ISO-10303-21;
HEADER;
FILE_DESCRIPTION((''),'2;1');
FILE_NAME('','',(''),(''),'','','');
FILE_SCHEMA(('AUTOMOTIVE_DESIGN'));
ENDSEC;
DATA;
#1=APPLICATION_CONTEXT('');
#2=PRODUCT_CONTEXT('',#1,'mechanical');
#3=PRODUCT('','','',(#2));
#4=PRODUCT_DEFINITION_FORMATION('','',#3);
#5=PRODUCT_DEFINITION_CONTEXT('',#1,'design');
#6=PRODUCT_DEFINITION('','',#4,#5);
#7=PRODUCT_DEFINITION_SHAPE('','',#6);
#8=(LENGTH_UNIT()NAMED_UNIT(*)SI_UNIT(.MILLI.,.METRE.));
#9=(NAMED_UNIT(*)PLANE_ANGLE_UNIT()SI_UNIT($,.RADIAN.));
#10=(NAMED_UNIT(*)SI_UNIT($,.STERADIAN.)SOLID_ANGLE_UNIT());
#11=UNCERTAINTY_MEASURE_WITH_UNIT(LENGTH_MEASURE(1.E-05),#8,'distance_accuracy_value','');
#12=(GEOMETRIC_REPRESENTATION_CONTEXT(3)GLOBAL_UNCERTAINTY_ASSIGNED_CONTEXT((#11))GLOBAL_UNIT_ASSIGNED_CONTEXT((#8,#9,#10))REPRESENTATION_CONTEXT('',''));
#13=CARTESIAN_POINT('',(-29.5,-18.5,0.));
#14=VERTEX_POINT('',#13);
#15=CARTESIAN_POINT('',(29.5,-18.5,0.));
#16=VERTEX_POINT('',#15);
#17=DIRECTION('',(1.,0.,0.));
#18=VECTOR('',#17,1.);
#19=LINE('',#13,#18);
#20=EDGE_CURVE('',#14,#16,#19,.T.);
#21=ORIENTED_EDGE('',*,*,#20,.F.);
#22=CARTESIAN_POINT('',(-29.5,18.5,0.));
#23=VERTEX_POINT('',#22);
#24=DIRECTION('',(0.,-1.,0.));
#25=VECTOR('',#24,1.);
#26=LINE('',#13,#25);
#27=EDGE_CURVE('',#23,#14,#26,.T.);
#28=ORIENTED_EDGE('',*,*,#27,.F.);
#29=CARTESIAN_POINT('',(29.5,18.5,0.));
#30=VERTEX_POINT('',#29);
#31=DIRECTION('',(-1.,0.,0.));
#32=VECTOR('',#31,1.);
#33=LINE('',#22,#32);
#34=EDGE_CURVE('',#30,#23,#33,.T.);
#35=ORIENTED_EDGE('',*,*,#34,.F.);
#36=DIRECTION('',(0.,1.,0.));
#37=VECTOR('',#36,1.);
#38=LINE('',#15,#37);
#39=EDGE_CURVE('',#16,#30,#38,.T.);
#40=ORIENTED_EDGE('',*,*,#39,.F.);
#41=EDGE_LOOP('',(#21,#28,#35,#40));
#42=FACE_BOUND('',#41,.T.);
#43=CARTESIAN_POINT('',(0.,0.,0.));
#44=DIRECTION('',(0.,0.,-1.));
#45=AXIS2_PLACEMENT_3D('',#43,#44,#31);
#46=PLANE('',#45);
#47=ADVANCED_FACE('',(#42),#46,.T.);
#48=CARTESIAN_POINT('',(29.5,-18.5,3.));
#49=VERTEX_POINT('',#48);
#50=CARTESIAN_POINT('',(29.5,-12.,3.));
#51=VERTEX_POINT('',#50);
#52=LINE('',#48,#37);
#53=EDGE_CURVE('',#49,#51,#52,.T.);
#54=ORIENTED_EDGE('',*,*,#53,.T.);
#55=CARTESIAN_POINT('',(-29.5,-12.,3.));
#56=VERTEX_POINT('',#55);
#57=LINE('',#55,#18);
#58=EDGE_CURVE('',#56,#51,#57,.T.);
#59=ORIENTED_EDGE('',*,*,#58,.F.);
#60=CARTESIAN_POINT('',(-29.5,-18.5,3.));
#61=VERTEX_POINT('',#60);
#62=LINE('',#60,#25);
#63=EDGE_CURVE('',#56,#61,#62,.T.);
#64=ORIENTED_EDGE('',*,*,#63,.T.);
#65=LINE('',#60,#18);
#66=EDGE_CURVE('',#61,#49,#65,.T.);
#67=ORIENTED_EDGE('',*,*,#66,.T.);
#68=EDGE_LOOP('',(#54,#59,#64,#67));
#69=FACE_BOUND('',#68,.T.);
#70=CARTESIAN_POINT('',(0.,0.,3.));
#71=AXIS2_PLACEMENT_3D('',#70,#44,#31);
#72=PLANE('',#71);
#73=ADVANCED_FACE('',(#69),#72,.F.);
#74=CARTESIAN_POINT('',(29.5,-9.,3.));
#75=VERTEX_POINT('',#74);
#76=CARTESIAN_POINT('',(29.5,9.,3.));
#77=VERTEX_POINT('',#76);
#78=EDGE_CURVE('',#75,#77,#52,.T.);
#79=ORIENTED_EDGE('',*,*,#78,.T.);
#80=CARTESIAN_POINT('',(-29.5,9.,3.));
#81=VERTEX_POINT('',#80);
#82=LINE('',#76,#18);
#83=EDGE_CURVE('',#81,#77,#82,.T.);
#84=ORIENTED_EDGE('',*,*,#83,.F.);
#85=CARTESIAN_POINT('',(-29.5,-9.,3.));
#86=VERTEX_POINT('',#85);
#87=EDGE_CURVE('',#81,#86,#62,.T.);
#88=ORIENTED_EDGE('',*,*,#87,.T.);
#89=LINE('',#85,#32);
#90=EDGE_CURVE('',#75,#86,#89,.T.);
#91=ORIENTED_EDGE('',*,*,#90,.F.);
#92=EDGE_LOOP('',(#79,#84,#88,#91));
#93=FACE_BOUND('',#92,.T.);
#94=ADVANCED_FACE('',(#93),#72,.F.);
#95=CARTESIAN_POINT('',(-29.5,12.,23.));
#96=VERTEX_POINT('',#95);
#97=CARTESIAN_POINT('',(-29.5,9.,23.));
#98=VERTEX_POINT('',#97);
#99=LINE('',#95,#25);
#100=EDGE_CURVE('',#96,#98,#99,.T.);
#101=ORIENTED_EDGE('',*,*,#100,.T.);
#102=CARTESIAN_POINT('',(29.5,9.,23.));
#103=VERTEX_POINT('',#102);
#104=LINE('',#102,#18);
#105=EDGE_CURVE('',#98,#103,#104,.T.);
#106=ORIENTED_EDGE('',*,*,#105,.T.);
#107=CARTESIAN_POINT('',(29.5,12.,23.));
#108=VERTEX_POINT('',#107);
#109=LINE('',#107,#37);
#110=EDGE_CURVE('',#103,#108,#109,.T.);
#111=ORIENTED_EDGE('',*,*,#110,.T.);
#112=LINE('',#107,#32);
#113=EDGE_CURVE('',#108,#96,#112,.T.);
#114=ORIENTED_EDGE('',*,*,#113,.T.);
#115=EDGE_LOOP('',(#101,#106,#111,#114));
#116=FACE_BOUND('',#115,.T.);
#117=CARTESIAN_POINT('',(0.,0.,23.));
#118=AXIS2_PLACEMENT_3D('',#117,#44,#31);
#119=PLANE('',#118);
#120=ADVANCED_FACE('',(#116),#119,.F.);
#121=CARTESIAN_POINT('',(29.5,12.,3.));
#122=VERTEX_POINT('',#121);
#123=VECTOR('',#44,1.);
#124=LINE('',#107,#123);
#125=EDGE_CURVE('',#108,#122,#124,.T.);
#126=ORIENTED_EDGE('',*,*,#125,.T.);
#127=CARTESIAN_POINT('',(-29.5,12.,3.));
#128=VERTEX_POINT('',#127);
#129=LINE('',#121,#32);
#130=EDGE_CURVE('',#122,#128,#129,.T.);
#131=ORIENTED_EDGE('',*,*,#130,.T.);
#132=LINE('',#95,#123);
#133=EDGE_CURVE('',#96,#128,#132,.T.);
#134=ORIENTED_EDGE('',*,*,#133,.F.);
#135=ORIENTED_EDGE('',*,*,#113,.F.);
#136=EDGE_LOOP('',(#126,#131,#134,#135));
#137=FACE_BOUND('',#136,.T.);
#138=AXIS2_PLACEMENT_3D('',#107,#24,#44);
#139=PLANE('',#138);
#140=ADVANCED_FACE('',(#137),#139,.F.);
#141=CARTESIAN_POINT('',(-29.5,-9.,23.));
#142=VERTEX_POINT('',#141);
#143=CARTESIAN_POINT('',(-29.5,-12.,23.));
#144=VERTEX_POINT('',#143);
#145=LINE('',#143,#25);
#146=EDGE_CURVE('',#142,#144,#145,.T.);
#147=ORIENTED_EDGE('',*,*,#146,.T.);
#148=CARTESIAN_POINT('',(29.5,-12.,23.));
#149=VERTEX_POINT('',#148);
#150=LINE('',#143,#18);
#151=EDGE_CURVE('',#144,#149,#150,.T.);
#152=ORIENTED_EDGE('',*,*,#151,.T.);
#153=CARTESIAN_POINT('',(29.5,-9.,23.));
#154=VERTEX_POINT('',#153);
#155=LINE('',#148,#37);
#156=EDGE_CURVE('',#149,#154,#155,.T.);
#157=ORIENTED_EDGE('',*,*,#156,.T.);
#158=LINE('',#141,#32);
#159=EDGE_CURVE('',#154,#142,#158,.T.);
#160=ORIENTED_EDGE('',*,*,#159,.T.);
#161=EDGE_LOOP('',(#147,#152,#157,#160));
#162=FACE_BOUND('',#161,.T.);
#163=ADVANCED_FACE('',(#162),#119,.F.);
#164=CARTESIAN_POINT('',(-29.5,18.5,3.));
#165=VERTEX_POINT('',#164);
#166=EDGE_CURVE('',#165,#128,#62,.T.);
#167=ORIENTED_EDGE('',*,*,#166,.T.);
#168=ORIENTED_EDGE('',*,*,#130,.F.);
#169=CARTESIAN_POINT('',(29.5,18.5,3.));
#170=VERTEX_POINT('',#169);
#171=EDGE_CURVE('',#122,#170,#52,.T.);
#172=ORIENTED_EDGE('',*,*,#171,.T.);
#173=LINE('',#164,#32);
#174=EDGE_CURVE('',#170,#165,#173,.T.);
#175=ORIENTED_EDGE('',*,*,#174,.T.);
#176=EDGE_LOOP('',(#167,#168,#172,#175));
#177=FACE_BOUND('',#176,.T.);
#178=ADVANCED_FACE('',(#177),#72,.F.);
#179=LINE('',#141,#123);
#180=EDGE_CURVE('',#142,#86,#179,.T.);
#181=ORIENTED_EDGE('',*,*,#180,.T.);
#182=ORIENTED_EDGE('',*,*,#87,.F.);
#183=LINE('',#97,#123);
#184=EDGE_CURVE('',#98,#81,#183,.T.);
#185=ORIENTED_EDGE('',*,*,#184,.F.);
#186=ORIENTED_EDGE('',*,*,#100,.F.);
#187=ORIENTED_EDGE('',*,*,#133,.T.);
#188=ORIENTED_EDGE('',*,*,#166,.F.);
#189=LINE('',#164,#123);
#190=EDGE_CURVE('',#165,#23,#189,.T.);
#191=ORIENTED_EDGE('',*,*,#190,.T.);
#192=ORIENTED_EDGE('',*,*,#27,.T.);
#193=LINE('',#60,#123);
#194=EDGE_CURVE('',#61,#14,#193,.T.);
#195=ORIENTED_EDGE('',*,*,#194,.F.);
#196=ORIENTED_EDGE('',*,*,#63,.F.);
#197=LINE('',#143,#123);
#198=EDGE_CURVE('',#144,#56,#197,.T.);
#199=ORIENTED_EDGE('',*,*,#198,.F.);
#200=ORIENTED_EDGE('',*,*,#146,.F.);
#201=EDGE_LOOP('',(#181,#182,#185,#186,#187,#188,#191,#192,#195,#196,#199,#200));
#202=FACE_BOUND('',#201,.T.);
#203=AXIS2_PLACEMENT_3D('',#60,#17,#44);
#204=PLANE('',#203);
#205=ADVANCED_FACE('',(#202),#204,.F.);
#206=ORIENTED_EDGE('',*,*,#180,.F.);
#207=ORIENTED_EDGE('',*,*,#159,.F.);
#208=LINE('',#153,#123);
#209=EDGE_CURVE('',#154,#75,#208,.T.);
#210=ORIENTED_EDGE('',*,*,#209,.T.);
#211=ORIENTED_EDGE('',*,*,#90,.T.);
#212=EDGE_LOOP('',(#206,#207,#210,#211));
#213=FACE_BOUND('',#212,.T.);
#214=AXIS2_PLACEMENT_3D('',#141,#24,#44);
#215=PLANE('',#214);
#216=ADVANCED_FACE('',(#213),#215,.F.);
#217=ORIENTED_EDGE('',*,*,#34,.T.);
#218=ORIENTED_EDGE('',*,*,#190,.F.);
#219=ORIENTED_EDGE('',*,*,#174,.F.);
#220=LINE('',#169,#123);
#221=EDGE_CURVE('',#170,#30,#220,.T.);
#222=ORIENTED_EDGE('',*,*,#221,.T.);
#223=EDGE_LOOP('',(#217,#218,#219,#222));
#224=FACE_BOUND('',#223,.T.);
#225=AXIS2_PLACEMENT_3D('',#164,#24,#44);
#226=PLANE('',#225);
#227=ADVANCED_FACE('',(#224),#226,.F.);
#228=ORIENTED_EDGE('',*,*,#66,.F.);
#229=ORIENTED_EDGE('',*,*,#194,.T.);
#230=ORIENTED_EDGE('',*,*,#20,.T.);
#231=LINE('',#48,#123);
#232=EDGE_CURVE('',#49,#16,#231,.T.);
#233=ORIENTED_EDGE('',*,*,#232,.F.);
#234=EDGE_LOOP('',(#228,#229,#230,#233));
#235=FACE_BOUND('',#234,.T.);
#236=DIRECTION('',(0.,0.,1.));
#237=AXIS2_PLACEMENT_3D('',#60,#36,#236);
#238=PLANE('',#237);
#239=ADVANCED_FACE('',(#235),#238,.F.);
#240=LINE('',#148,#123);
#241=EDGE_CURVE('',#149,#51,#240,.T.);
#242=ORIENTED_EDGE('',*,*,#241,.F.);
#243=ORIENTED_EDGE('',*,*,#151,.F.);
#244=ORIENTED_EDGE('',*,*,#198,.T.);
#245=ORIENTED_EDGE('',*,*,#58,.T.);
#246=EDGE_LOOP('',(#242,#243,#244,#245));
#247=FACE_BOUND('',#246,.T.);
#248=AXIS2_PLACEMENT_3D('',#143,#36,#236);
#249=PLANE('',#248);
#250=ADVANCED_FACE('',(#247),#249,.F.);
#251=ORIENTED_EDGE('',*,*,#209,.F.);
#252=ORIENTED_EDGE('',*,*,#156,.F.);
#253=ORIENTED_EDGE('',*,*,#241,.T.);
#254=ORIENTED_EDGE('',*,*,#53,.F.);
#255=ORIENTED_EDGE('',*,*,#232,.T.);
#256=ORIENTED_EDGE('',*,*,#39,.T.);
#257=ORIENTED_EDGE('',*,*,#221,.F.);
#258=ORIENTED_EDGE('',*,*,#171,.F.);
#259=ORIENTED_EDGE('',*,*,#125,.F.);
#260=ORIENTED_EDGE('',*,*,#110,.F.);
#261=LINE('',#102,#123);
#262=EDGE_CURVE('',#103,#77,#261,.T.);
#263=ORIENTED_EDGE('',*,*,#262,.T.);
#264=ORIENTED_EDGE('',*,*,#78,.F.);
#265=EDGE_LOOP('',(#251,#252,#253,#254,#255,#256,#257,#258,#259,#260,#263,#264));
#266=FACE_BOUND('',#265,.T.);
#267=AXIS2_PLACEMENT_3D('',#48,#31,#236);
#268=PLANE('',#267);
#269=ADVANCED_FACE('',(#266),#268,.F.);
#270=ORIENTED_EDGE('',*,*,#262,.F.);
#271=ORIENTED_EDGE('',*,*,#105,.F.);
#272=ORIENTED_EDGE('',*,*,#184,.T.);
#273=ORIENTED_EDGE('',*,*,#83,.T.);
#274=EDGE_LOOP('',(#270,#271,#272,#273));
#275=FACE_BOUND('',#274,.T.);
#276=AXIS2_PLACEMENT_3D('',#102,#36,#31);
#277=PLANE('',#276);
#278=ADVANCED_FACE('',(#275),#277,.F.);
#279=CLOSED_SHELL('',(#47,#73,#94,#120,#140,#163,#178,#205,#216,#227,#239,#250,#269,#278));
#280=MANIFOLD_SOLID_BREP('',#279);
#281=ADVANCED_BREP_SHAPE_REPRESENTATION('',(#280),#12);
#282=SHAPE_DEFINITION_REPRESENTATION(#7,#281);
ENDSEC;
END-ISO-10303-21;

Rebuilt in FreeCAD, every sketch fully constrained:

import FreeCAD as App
import Part
import Sketcher

V = App.Vector

doc = App.newDocument("Part")
params = doc.addObject("Spreadsheet::Sheet", "Params")
for row, (alias, value) in enumerate([
    ("sketch1_width", "59 mm"),
    ("sketch1_height", "37 mm"),
    ("pad1_length", "3 mm"),
    ("sketch2_width", "59 mm"),
    ("sketch2_height", "3 mm"),
    ("pad2_length", "20 mm"),
], start=1):
    params.set(f"A{row}", alias)
    params.set(f"B{row}", "=" + value)
    params.setAlias(f"B{row}", alias)

body = doc.addObject("PartDesign::Body", "Body")

sketch1 = body.newObject("Sketcher::SketchObject", "Sketch")
sketch1.AttachmentSupport = (doc.getObject("XY_Plane"), [""])
sketch1.MapMode = "FlatFace"
sketch1.addGeometry([
    Part.LineSegment(V(-29.5, 18.5, 0), V(-29.5, -18.5, 0)),
    Part.LineSegment(V(-29.5, -18.5, 0), V(29.5, -18.5, 0)),
    Part.LineSegment(V(29.5, -18.5, 0), V(29.5, 18.5, 0)),
    Part.LineSegment(V(29.5, 18.5, 0), V(-29.5, 18.5, 0)),
], False)
sketch1.addConstraint([
    Sketcher.Constraint("Coincident", 0, 2, 1, 1),
    Sketcher.Constraint("Coincident", 1, 2, 2, 1),
    Sketcher.Constraint("Coincident", 2, 2, 3, 1),
    Sketcher.Constraint("Coincident", 3, 2, 0, 1),
    Sketcher.Constraint("Vertical", 0),
    Sketcher.Constraint("Horizontal", 1),
    Sketcher.Constraint("Vertical", 2),
    Sketcher.Constraint("Horizontal", 3),
    Sketcher.Constraint("Symmetric", 0, 2, 2, 2, -1, 1),
    Sketcher.Constraint("DistanceX", 1, 1, 1, 2, 59.0),
    Sketcher.Constraint("DistanceY", 0, 2, 0, 1, 37.0),
])
sketch1.setExpression("Constraints[9]", "Params.sketch1_width")
sketch1.setExpression("Constraints[10]", "Params.sketch1_height")
pad1 = body.newObject("PartDesign::Pad", "Pad")
pad1.Profile = sketch1
pad1.setExpression("Length", "Params.pad1_length")

sketch2 = body.newObject("Sketcher::SketchObject", "Sketch001")
sketch2.AttachmentSupport = (doc.getObject("XY_Plane"), [""])
sketch2.MapMode = "FlatFace"
sketch2.AttachmentOffset = App.Placement(V(0, 0, 3), App.Rotation())
sketch2.addGeometry([
    Part.LineSegment(V(-29.5, -9, 0), V(-29.5, -12, 0)),
    Part.LineSegment(V(-29.5, -12, 0), V(29.5, -12, 0)),
    Part.LineSegment(V(29.5, -12, 0), V(29.5, -9, 0)),
    Part.LineSegment(V(29.5, -9, 0), V(-29.5, -9, 0)),
    Part.LineSegment(V(-29.5, 12, 0), V(-29.5, 9, 0)),
    Part.LineSegment(V(-29.5, 9, 0), V(29.5, 9, 0)),
    Part.LineSegment(V(29.5, 9, 0), V(29.5, 12, 0)),
    Part.LineSegment(V(29.5, 12, 0), V(-29.5, 12, 0)),
], False)
sketch2.addConstraint([
    Sketcher.Constraint("Coincident", 0, 2, 1, 1),
    Sketcher.Constraint("Coincident", 1, 2, 2, 1),
    Sketcher.Constraint("Coincident", 2, 2, 3, 1),
    Sketcher.Constraint("Coincident", 3, 2, 0, 1),
    Sketcher.Constraint("Coincident", 4, 2, 5, 1),
    Sketcher.Constraint("Coincident", 5, 2, 6, 1),
    Sketcher.Constraint("Coincident", 6, 2, 7, 1),
    Sketcher.Constraint("Coincident", 7, 2, 4, 1),
    Sketcher.Constraint("Vertical", 0),
    Sketcher.Constraint("Horizontal", 1),
    Sketcher.Constraint("Vertical", 2),
    Sketcher.Constraint("Horizontal", 3),
    Sketcher.Constraint("Vertical", 4),
    Sketcher.Constraint("Horizontal", 5),
    Sketcher.Constraint("Vertical", 6),
    Sketcher.Constraint("Horizontal", 7),
    Sketcher.Constraint("Symmetric", 2, 2, 4, 2, -1, 1),
    Sketcher.Constraint("Symmetric", 0, 2, 6, 2, -1, 1),
    Sketcher.Constraint("Vertical", 3, 2, 4, 2),
    Sketcher.Constraint("DistanceX", 1, 1, 1, 2, 59.0),
    Sketcher.Constraint("DistanceY", 0, 2, 0, 1, 3.0),
    Sketcher.Constraint("DistanceY", 0, 2, -1, 1, 12.0),
])
sketch2.setExpression("Constraints[19]", "Params.sketch2_width")
sketch2.setExpression("Constraints[20]", "Params.sketch2_height")
pad2 = body.newObject("PartDesign::Pad", "Pad001")
pad2.Profile = sketch2
pad2.setExpression("Length", "Params.pad2_length")

doc.recompute()
